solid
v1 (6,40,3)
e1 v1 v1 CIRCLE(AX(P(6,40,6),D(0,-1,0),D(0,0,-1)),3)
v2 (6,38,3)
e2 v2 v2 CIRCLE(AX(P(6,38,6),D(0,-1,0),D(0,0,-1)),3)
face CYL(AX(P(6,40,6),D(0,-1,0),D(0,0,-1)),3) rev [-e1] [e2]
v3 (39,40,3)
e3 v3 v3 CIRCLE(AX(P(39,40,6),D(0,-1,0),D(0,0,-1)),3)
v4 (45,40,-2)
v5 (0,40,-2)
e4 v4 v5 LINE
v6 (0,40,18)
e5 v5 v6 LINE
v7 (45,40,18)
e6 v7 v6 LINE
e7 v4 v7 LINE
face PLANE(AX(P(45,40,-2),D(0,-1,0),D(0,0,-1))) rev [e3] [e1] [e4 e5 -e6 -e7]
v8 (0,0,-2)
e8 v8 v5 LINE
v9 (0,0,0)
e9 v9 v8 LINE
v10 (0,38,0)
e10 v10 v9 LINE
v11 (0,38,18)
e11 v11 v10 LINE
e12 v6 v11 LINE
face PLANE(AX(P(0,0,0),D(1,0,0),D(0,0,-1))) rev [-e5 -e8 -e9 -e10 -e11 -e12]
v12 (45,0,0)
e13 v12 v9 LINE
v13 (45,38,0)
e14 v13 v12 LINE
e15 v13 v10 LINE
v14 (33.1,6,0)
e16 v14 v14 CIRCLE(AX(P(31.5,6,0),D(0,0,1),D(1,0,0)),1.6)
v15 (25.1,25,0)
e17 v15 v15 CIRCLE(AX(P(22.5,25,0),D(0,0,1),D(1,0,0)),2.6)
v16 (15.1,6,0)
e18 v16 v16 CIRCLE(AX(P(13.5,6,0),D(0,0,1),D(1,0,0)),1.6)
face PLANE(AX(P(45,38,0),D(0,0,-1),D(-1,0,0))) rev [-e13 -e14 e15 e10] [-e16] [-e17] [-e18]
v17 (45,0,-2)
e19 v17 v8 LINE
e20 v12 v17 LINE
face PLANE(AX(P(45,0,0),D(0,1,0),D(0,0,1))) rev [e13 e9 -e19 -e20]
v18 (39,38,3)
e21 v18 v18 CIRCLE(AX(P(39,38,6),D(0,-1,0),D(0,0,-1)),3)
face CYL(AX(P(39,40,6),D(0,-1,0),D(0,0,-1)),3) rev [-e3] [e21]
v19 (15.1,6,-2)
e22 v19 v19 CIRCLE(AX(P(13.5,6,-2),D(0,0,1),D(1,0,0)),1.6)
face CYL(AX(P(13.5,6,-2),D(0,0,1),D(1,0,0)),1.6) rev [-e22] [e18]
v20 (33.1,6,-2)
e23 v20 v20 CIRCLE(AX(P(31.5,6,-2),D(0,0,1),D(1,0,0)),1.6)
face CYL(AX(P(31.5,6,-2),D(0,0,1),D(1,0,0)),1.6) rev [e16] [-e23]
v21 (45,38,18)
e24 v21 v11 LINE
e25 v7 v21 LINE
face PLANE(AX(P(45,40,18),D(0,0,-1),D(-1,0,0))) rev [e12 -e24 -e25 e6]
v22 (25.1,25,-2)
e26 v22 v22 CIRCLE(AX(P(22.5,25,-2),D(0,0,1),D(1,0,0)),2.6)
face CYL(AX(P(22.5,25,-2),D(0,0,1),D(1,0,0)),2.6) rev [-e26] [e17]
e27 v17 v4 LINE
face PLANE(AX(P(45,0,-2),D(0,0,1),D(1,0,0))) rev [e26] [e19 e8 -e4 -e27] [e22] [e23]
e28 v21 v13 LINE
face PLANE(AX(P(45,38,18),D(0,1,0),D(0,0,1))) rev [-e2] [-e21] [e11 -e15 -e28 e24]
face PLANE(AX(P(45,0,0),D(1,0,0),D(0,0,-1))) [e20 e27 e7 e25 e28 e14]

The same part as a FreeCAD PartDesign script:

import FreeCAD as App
import Part
import Sketcher
Q = App.Units.Quantity

doc = App.newDocument("Part")
params = doc.addObject("Spreadsheet::Sheet", "Params")
for row, (alias, value) in enumerate([
    ("sketch1_width", "2 mm"),
    ("sketch1_width2", "38 mm"),
    ("sketch1_height", "18 mm"),
    ("pad1_length", "45 mm"),
    ("sketch2_diameter", "6 mm"),
    ("sketch3_diameter", "5.2 mm"),
    ("sketch4_diameter", "3.2 mm"),
], start=1):
    params.set(f"A{row}", alias)
    params.set(f"B{row}", "=" + value)
    params.setAlias(f"B{row}", alias)

body = doc.addObject("PartDesign::Body", "Body")

# Sketch on YZ plane
sketch1 = doc.addObject("Sketcher::SketchObject", "Sketch")
body.addObject(sketch1)
sketch1.AttachmentSupport = (doc.YZ_Plane, [""])
sketch1.MapMode = "FlatFace"
sketch1.addGeometry(Part.LineSegment(App.Vector(40, 18, 0), App.Vector(38, 18, 0)), False)
sketch1.addGeometry(Part.LineSegment(App.Vector(38, 18, 0), App.Vector(38, 0, 0)), False)
sketch1.addGeometry(Part.LineSegment(App.Vector(38, 0, 0), App.Vector(0, 0, 0)), False)
sketch1.addGeometry(Part.LineSegment(App.Vector(0, 0, 0), App.Vector(0, -2, 0)), False)
sketch1.addGeometry(Part.LineSegment(App.Vector(0, -2, 0), App.Vector(40, -2, 0)), False)
sketch1.addGeometry(Part.LineSegment(App.Vector(40, -2, 0), App.Vector(40, 18, 0)), False)
sketch1.addConstraint(Sketcher.Constraint("Coincident", 0, 2, 1, 1))
sketch1.addConstraint(Sketcher.Constraint("Coincident", 1, 2, 2, 1))
sketch1.addConstraint(Sketcher.Constraint("Coincident", 2, 2, 3, 1))
sketch1.addConstraint(Sketcher.Constraint("Coincident", 3, 2, 4, 1))
sketch1.addConstraint(Sketcher.Constraint("Coincident", 4, 2, 5, 1))
sketch1.addConstraint(Sketcher.Constraint("Coincident", 5, 2, 0, 1))
sketch1.addConstraint(Sketcher.Constraint("Horizontal", 0))
sketch1.addConstraint(Sketcher.Constraint("Vertical", 1))
sketch1.addConstraint(Sketcher.Constraint("Horizontal", 2))
sketch1.addConstraint(Sketcher.Constraint("Vertical", 3))
sketch1.addConstraint(Sketcher.Constraint("Horizontal", 4))
sketch1.addConstraint(Sketcher.Constraint("Vertical", 5))
sketch1.addConstraint(Sketcher.Constraint("Coincident", 2, 2, -1, 1))
sketch1.addConstraint(Sketcher.Constraint("Equal", 0, 3))
sketch1.addConstraint(Sketcher.Constraint("DistanceX", 0, 2, 0, 1, Q("2 mm")))
sketch1.addConstraint(Sketcher.Constraint("DistanceX", 2, 2, 2, 1, Q("38 mm")))
sketch1.addConstraint(Sketcher.Constraint("DistanceY", 1, 2, 1, 1, Q("18 mm")))
sketch1.setExpression("Constraints[14]", "Params.sketch1_width")
sketch1.setExpression("Constraints[15]", "Params.sketch1_width2")
sketch1.setExpression("Constraints[16]", "Params.sketch1_height")
pad1 = doc.addObject("PartDesign::Pad", "Pad")
body.addObject(pad1)
pad1.Profile = sketch1
pad1.setExpression("Length", "Params.pad1_length")

# Sketch on XZ plane
sketch2 = doc.addObject("Sketcher::SketchObject", "Sketch001")
body.addObject(sketch2)
sketch2.AttachmentSupport = (doc.XZ_Plane, [""])
sketch2.MapMode = "FlatFace"
sketch2.AttachmentOffset = App.Placement(App.Vector(0, 0, -38), App.Rotation())
sketch2.addGeometry(Part.Circle(App.Vector(6, 6, 0), App.Vector(0, 0, 1), 3), False)
sketch2.addGeometry(Part.Circle(App.Vector(39, 6, 0), App.Vector(0, 0, 1), 3), False)
sketch2.addConstraint(Sketcher.Constraint("Equal", 0, 1))
sketch2.addConstraint(Sketcher.Constraint("Horizontal", 0, 3, 1, 3))
sketch2.addConstraint(Sketcher.Constraint("Diameter", 0, Q("6 mm")))
sketch2.addConstraint(Sketcher.Constraint("DistanceX", -1, 1, 0, 3, Q("6 mm")))
sketch2.addConstraint(Sketcher.Constraint("DistanceY", -1, 1, 0, 3, Q("6 mm")))
sketch2.addConstraint(Sketcher.Constraint("DistanceX", -1, 1, 1, 3, Q("39 mm")))
sketch2.setExpression("Constraints[2]", "Params.sketch2_diameter")
pocket1 = doc.addObject("PartDesign::Pocket", "Pocket")
body.addObject(pocket1)
pocket1.Profile = sketch2
pocket1.Type = "ThroughAll"

# Sketch on XY plane
sketch3 = doc.addObject("Sketcher::SketchObject", "Sketch002")
body.addObject(sketch3)
sketch3.AttachmentSupport = (doc.XY_Plane, [""])
sketch3.MapMode = "FlatFace"
sketch3.addGeometry(Part.Circle(App.Vector(22.5, 25, 0), App.Vector(0, 0, 1), 2.6), False)
sketch3.addConstraint(Sketcher.Constraint("Diameter", 0, Q("5.2 mm")))
sketch3.addConstraint(Sketcher.Constraint("DistanceY", -1, 1, 0, 3, Q("25 mm")))
sketch3.addConstraint(Sketcher.Constraint("DistanceX", -1, 1, 0, 3, Q("22.5 mm")))
sketch3.setExpression("Constraints[0]", "Params.sketch3_diameter")
pocket2 = doc.addObject("PartDesign::Pocket", "Pocket001")
body.addObject(pocket2)
pocket2.Profile = sketch3
pocket2.Type = "ThroughAll"

# Sketch on XY plane
sketch4 = doc.addObject("Sketcher::SketchObject", "Sketch003")
body.addObject(sketch4)
sketch4.AttachmentSupport = (doc.XY_Plane, [""])
sketch4.MapMode = "FlatFace"
sketch4.addGeometry(Part.Circle(App.Vector(13.5, 6, 0), App.Vector(0, 0, 1), 1.6), False)
sketch4.addGeometry(Part.Circle(App.Vector(31.5, 6, 0), App.Vector(0, 0, 1), 1.6), False)
sketch4.addConstraint(Sketcher.Constraint("Equal", 0, 1))
sketch4.addConstraint(Sketcher.Constraint("Horizontal", 0, 3, 1, 3))
sketch4.addConstraint(Sketcher.Constraint("Diameter", 0, Q("3.2 mm")))
sketch4.addConstraint(Sketcher.Constraint("DistanceY", -1, 1, 0, 3, Q("6 mm")))
sketch4.addConstraint(Sketcher.Constraint("DistanceX", 0, 3, 1, 3, Q("18 mm")))
sketch4.addConstraint(Sketcher.Constraint("DistanceX", -1, 1, 0, 3, Q("13.5 mm")))
sketch4.setExpression("Constraints[2]", "Params.sketch4_diameter")
pocket3 = doc.addObject("PartDesign::Pocket", "Pocket002")
body.addObject(pocket3)
pocket3.Profile = sketch4
pocket3.Type = "ThroughAll"

doc.recompute()
